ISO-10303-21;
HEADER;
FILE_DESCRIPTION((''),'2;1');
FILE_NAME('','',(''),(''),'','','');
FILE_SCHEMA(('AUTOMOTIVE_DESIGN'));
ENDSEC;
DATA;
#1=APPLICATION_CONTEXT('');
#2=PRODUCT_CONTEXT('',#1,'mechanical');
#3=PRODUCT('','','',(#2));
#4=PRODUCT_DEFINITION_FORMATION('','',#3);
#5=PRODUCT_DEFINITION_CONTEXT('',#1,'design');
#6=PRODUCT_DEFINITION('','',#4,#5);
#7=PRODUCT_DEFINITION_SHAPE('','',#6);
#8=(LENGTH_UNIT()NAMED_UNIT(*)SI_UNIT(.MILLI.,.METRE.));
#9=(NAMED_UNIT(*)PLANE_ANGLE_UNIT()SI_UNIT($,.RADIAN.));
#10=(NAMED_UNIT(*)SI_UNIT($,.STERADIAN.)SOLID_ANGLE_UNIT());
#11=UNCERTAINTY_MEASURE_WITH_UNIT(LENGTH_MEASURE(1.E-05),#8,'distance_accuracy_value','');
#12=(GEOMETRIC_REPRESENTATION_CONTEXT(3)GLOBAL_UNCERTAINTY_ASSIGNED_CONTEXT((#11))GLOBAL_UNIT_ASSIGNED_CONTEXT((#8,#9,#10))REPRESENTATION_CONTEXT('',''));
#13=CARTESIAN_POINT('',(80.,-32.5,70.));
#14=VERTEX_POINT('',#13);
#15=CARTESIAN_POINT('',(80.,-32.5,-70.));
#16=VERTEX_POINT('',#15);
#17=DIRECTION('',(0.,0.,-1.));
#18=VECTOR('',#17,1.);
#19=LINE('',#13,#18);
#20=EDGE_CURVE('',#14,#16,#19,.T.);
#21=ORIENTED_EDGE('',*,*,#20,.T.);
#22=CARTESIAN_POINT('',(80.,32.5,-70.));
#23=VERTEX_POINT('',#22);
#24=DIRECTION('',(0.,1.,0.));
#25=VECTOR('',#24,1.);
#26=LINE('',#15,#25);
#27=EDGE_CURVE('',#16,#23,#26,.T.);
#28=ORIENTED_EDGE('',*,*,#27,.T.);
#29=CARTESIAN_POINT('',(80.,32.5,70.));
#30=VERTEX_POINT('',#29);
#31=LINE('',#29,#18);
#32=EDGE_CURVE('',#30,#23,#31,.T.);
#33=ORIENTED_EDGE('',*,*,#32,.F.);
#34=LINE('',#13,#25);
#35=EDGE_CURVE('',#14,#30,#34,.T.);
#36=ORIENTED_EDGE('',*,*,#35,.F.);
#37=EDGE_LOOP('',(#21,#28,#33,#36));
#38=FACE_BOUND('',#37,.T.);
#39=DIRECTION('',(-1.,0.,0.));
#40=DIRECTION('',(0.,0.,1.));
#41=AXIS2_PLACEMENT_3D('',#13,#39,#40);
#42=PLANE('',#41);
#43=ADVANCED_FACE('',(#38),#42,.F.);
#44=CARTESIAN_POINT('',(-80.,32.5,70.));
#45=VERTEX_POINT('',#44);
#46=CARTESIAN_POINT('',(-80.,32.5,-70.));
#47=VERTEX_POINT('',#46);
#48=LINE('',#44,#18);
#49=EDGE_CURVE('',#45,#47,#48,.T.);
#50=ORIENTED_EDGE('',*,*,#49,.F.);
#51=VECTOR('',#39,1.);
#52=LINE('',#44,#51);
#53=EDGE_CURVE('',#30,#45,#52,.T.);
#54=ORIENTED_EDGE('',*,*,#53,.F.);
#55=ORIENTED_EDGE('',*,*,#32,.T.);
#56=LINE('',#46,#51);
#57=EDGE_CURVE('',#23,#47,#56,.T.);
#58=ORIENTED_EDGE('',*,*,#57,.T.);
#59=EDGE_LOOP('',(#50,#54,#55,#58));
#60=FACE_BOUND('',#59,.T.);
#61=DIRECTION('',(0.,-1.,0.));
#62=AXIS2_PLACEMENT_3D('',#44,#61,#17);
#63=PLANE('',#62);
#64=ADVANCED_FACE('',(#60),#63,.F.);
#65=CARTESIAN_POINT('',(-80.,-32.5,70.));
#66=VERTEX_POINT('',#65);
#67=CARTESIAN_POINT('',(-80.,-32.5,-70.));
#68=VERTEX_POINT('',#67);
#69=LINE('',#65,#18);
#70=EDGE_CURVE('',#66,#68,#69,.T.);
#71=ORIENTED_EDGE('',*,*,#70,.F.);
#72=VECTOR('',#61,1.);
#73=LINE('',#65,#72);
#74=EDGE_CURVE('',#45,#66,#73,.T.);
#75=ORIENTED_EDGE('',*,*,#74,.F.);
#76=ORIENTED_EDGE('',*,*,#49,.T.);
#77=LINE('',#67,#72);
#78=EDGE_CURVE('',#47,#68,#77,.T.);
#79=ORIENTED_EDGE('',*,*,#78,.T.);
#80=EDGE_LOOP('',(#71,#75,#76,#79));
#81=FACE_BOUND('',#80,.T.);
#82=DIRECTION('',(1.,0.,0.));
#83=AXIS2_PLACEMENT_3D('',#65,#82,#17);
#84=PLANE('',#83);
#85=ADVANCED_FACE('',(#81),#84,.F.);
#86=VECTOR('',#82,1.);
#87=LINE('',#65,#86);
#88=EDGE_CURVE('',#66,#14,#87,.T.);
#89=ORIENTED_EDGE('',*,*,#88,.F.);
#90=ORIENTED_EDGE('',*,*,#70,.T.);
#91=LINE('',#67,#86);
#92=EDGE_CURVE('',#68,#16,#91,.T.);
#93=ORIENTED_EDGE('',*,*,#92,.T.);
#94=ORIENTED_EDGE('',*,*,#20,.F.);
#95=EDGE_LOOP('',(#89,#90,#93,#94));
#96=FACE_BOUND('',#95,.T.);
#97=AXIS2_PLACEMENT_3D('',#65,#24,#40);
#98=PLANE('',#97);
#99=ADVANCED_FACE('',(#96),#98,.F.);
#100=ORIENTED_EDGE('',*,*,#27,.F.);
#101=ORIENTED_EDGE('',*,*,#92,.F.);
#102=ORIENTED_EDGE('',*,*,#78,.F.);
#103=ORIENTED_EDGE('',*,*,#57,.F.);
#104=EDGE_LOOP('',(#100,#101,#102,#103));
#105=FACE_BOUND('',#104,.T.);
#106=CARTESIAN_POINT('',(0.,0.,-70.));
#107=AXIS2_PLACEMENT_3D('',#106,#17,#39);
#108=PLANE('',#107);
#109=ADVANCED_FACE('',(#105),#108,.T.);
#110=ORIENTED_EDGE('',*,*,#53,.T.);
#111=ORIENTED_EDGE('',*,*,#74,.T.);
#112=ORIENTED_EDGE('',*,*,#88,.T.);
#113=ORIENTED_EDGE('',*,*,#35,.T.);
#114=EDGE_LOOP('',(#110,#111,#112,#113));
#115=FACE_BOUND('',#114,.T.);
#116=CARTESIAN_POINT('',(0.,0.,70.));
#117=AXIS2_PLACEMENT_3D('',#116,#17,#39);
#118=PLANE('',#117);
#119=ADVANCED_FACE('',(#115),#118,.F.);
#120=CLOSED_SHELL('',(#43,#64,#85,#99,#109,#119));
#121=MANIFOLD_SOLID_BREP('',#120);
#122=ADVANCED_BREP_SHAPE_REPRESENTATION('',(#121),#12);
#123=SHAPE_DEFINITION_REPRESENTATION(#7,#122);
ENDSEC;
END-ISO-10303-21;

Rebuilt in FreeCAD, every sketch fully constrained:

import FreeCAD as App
import Part
import Sketcher
from FreeCAD import Vector

doc = App.newDocument("Part")
body = doc.addObject("PartDesign::Body", "Body")

# Sketch on XY plane
sketch1 = body.newObject("Sketcher::SketchObject", "Sketch")
sketch1.AttachmentSupport = (doc.getObject("XY_Plane"), [""])
sketch1.MapMode = "FlatFace"
sketch1.addGeometry([
    Part.LineSegment(Vector(-80, 32.5, 0), Vector(-80, -32.5, 0)),
    Part.LineSegment(Vector(-80, -32.5, 0), Vector(80, -32.5, 0)),
    Part.LineSegment(Vector(80, -32.5, 0), Vector(80, 32.5, 0)),
    Part.LineSegment(Vector(80, 32.5, 0), Vector(-80, 32.5, 0)),
], False)
sketch1.addConstraint([
    Sketcher.Constraint("Coincident", 0, 2, 1, 1),
    Sketcher.Constraint("Coincident", 1, 2, 2, 1),
    Sketcher.Constraint("Coincident", 2, 2, 3, 1),
    Sketcher.Constraint("Coincident", 3, 2, 0, 1),
    Sketcher.Constraint("Vertical", 0),
    Sketcher.Constraint("Horizontal", 1),
    Sketcher.Constraint("Vertical", 2),
    Sketcher.Constraint("Horizontal", 3),
    Sketcher.Constraint("Symmetric", 0, 2, 2, 2, -1, 1),
    Sketcher.Constraint("DistanceX", 1, 1, 1, 2, 160.0),
    Sketcher.Constraint("DistanceY", 0, 2, 0, 1, 65.0),
])
pad1 = body.newObject("PartDesign::Pad", "Pad")
pad1.Profile = sketch1
pad1.Length = 140
pad1.Midplane = True

doc.recompute()
